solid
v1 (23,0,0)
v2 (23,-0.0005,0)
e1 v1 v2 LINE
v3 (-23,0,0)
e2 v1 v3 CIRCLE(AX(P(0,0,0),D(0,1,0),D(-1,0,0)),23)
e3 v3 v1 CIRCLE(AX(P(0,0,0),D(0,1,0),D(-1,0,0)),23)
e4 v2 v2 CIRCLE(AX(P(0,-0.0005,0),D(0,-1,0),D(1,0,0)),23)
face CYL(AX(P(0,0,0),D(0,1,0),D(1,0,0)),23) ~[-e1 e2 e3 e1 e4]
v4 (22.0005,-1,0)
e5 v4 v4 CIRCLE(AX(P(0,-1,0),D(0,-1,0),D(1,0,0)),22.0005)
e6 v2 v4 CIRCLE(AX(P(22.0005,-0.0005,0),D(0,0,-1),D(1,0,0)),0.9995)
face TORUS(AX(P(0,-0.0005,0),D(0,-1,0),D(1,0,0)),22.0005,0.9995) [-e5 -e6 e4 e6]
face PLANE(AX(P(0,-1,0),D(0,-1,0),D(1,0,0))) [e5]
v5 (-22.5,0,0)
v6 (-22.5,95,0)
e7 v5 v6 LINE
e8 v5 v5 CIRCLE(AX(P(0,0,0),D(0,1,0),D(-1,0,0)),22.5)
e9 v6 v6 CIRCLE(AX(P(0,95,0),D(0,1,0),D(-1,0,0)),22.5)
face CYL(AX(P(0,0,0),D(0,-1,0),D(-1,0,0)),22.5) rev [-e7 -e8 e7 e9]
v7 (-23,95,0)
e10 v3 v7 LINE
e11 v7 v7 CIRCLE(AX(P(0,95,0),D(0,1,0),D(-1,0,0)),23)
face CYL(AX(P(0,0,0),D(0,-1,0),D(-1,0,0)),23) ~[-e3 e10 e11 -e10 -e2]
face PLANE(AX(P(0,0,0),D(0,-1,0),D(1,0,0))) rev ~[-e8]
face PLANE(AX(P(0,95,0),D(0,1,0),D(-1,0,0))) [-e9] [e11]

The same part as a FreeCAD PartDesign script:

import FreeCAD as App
import Part
import Sketcher
Q = App.Units.Quantity


def edges_at(feature, points):
    """Names of the edges that pass closest to the given points."""
    edges = feature.Shape.Edges
    near = lambda p: min(range(len(edges)), key=lambda i: edges[i].distToShape(Part.Vertex(*p))[0])
    return sorted({f"Edge{near(p) + 1}" for p in points})

doc = App.newDocument("Part")
body = doc.addObject("PartDesign::Body", "Body")

sketch1 = doc.addObject("Sketcher::SketchObject", "Sketch")
body.addObject(sketch1)
sketch1.AttachmentSupport = (doc.XZ_Plane, [""])
sketch1.MapMode = "FlatFace"
sketch1.addGeometry([
    Part.Circle(App.Vector(0, 0, 0), App.Vector(0, 0, 1), 23),
    Part.Circle(App.Vector(0, 0, 0), App.Vector(0, 0, 1), 22),
], False)
sketch1.addConstraint([
    Sketcher.Constraint("Coincident", 0, 3, -1, 1),
    Sketcher.Constraint("Coincident", 1, 3, -1, 1),
    Sketcher.Constraint("Diameter", 0, Q("46 mm")),
    Sketcher.Constraint("Diameter", 1, Q("45 mm")),
])
pad1 = doc.addObject("PartDesign::Pad", "Pad")
body.addObject(pad1)
pad1.Profile = sketch1
pad1.Length = 95
pad1.Reversed = True

sketch2 = doc.addObject("Sketcher::SketchObject", "Sketch001")
body.addObject(sketch2)
sketch2.AttachmentSupport = (doc.XZ_Plane, [""])
sketch2.MapMode = "FlatFace"
sketch2.addGeometry(Part.Circle(App.Vector(0, 0, 0), App.Vector(0, 0, 1), 23), False)
sketch2.addConstraint([
    Sketcher.Constraint("Coincident", 0, 3, -1, 1),
    Sketcher.Constraint("Diameter", 0, Q("46 mm")),
])
pad2 = doc.addObject("PartDesign::Pad", "Pad001")
body.addObject(pad2)
pad2.Profile = sketch2
pad2.Length = 1
doc.recompute()

fillet = doc.addObject("PartDesign::Fillet", "Fillet")
body.addObject(fillet)
fillet.Base = (pad2, edges_at(pad2, [(-23, -1, 0)]))
fillet.Radius = 1

doc.recompute()
